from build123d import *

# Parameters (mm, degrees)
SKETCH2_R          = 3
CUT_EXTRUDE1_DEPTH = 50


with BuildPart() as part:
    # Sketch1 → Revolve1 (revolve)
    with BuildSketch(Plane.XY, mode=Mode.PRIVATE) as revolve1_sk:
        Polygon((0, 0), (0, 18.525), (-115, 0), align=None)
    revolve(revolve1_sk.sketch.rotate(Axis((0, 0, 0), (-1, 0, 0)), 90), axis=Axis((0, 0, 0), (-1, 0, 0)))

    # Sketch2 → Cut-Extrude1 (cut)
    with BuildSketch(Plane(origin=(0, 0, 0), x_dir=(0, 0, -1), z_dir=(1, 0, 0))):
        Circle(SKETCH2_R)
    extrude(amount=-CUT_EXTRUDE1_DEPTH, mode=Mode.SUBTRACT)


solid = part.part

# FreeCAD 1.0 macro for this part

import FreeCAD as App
import Part
import Sketcher

doc = App.newDocument("Part")
body = doc.addObject("PartDesign::Body", "Body")

# Sketch on XY plane
sketch1 = body.newObject("Sketcher::SketchObject", "Sketch")
sketch1.AttachmentSupport = (doc.getObject("XY_Plane"), [""])
sketch1.MapMode = "FlatFace"
sketch1.addGeometry(Part.LineSegment(App.Vector(0, 0, 0), App.Vector(0, 19, 0)), False)
sketch1.addGeometry(Part.LineSegment(App.Vector(0, 19, 0), App.Vector(-115, 0, 0)), False)
sketch1.addGeometry(Part.LineSegment(App.Vector(-115, 0, 0), App.Vector(0, 0, 0)), False)
sketch1.addConstraint(Sketcher.Constraint("Coincident", 0, 2, 1, 1))
sketch1.addConstraint(Sketcher.Constraint("Coincident", 1, 2, 2, 1))
sketch1.addConstraint(Sketcher.Constraint("Coincident", 2, 2, 0, 1))
sketch1.addConstraint(Sketcher.Constraint("Vertical", 0))
sketch1.addConstraint(Sketcher.Constraint("Horizontal", 2))
sketch1.addConstraint(Sketcher.Constraint("Coincident", 2, 2, -1, 1))
sketch1.addConstraint(Sketcher.Constraint("DistanceX", 2, 1, 2, 2, 115.0))
sketch1.addConstraint(Sketcher.Constraint("DistanceY", 0, 1, 0, 2, 18.525))
revolution = body.newObject("PartDesign::Revolution", "Revolution")
revolution.Profile = sketch1
revolution.ReferenceAxis = (sketch1, ["H_Axis"])
revolution.Angle = 360

# Sketch on YZ plane
sketch2 = body.newObject("Sketcher::SketchObject", "Sketch001")
sketch2.AttachmentSupport = (doc.getObject("YZ_Plane"), [""])
sketch2.MapMode = "FlatFace"
sketch2.addGeometry(Part.Circle(App.Vector(0, 0, 0), App.Vector(0, 0, 1), 3), False)
sketch2.addConstraint(Sketcher.Constraint("Coincident", 0, 3, -1, 1))
sketch2.addConstraint(Sketcher.Constraint("Diameter", 0, 6.0))
pocket1 = body.newObject("PartDesign::Pocket", "Pocket")
pocket1.Profile = sketch2
pocket1.Length = 50

doc.recompute()
